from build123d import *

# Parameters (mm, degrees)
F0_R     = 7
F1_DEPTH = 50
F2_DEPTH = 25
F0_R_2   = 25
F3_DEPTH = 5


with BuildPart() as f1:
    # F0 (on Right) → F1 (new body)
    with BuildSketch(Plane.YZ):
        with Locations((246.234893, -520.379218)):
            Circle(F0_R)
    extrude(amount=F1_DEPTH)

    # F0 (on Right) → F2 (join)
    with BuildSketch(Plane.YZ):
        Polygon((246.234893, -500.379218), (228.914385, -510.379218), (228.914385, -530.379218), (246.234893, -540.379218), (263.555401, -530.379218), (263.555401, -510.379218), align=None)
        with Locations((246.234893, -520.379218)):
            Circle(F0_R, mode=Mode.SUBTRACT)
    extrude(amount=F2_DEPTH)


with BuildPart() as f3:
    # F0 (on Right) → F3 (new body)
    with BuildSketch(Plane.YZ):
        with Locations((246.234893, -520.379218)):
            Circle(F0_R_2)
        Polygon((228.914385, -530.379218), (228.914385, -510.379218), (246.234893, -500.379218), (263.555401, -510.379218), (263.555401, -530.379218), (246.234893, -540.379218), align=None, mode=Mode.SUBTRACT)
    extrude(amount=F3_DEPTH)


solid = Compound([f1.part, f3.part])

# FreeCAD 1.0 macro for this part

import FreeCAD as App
import Part
import Sketcher

V = App.Vector
Q = App.Units.Quantity

doc = App.newDocument("Part")
body = doc.addObject("PartDesign::Body", "Body")

# Sketch on YZ plane
sketch1 = body.newObject("Sketcher::SketchObject", "Sketch")
sketch1.AttachmentSupport = (doc.getObject("YZ_Plane"), [""])
sketch1.MapMode = "FlatFace"
sketch1.addGeometry(Part.Circle(V(246, -520, 0), V(0, 0, 1), 7), False)
sketch1.addConstraint([
    Sketcher.Constraint("Diameter", 0, 14.0),
    Sketcher.Constraint("DistanceY", 0, 3, -1, 1, 520.379218),
    Sketcher.Constraint("DistanceX", -1, 1, 0, 3, 246.234893),
])
pad1 = body.newObject("PartDesign::Pad", "Pad")
pad1.Profile = sketch1
pad1.Length = 50

# Sketch on YZ plane
sketch2 = body.newObject("Sketcher::SketchObject", "Sketch001")
sketch2.AttachmentSupport = (doc.getObject("YZ_Plane"), [""])
sketch2.MapMode = "FlatFace"
sketch2.addGeometry([
    Part.LineSegment(V(246, -500, 0), V(229, -510, 0)),  # 0
    Part.LineSegment(V(229, -510, 0), V(229, -530, 0)),  # 1
    Part.LineSegment(V(229, -530, 0), V(246, -540, 0)),  # 2
    Part.LineSegment(V(246, -540, 0), V(264, -530, 0)),  # 3
    Part.LineSegment(V(264, -530, 0), V(264, -510, 0)),  # 4
    Part.LineSegment(V(264, -510, 0), V(246, -500, 0)),  # 5
    Part.Circle(V(246, -520, 0), V(0, 0, 1), 7),  # 6
], False)
sketch2.addConstraint([
    Sketcher.Constraint("Coincident", 0, 2, 1, 1),
    Sketcher.Constraint("Coincident", 1, 2, 2, 1),
    Sketcher.Constraint("Coincident", 2, 2, 3, 1),
    Sketcher.Constraint("Coincident", 3, 2, 4, 1),
    Sketcher.Constraint("Coincident", 4, 2, 5, 1),
    Sketcher.Constraint("Coincident", 5, 2, 0, 1),
    Sketcher.Constraint("Vertical", 1),
    Sketcher.Constraint("Vertical", 4),
    Sketcher.Constraint("Parallel", 0, 3),
    Sketcher.Constraint("Parallel", 2, 5),
    Sketcher.Constraint("Horizontal", 1, 2, 3, 2),
    Sketcher.Constraint("Horizontal", 0, 2, 4, 2),
    Sketcher.Constraint("Vertical", 6, 3, 2, 2),
    Sketcher.Constraint("Vertical", 2, 2, 5, 2),
    Sketcher.Constraint("Diameter", 6, 14.0),
    Sketcher.Constraint("DistanceY", 1, 2, 1, 1, 20.0),
    Sketcher.Constraint("Angle", 0, Q("-150 deg")),
    Sketcher.Constraint("Distance", 0, 20.0),
    Sketcher.Constraint("DistanceY", 6, 3, 0, 2, 10.0),
    Sketcher.Constraint("DistanceX", -1, 1, 3, 2, 263.555401),
    Sketcher.Constraint("DistanceY", 6, 3, -1, 1, 520.379218),
])
pad2 = body.newObject("PartDesign::Pad", "Pad001")
pad2.Profile = sketch2
pad2.Length = 25
body2 = doc.addObject("PartDesign::Body", "Body001")

# Sketch on YZ plane
sketch3 = body2.newObject("Sketcher::SketchObject", "Sketch002")
sketch3.AttachmentSupport = (doc.getObject("YZ_Plane001"), [""])
sketch3.MapMode = "FlatFace"
sketch3.addGeometry([
    Part.Circle(V(246, -520, 0), V(0, 0, 1), 25),  # 0
    Part.LineSegment(V(246, -540, 0), V(229, -530, 0)),  # 1
    Part.LineSegment(V(229, -530, 0), V(229, -510, 0)),  # 2
    Part.LineSegment(V(229, -510, 0), V(246, -500, 0)),  # 3
    Part.LineSegment(V(246, -500, 0), V(264, -510, 0)),  # 4
    Part.LineSegment(V(264, -510, 0), V(264, -530, 0)),  # 5
    Part.LineSegment(V(264, -530, 0), V(246, -540, 0)),  # 6
], False)
sketch3.addConstraint([
    Sketcher.Constraint("Coincident", 1, 2, 2, 1),
    Sketcher.Constraint("Coincident", 2, 2, 3, 1),
    Sketcher.Constraint("Coincident", 3, 2, 4, 1),
    Sketcher.Constraint("Coincident", 4, 2, 5, 1),
    Sketcher.Constraint("Coincident", 5, 2, 6, 1),
    Sketcher.Constraint("Coincident", 6, 2, 1, 1),
    Sketcher.Constraint("Vertical", 2),
    Sketcher.Constraint("Vertical", 5),
    Sketcher.Constraint("Parallel", 1, 4),
    Sketcher.Constraint("Parallel", 3, 6),
    Sketcher.Constraint("Horizontal", 2, 2, 4, 2),
    Sketcher.Constraint("Horizontal", 1, 2, 5, 2),
    Sketcher.Constraint("Vertical", 0, 3, 3, 2),
    Sketcher.Constraint("Vertical", 3, 2, 6, 2),
    Sketcher.Constraint("Diameter", 0, 50.0),
    Sketcher.Constraint("DistanceY", 2, 1, 2, 2, 20.0),
    Sketcher.Constraint("Angle", 1, Q("150 deg")),
    Sketcher.Constraint("Distance", 1, 20.0),
    Sketcher.Constraint("DistanceY", 1, 2, 0, 3, 10.0),
    Sketcher.Constraint("DistanceX", -1, 1, 4, 2, 263.555401),
    Sketcher.Constraint("DistanceY", 0, 3, -1, 1, 520.379218),
])
pad3 = body2.newObject("PartDesign::Pad", "Pad002")
pad3.Profile = sketch3
pad3.Length = 5

doc.recompute()
